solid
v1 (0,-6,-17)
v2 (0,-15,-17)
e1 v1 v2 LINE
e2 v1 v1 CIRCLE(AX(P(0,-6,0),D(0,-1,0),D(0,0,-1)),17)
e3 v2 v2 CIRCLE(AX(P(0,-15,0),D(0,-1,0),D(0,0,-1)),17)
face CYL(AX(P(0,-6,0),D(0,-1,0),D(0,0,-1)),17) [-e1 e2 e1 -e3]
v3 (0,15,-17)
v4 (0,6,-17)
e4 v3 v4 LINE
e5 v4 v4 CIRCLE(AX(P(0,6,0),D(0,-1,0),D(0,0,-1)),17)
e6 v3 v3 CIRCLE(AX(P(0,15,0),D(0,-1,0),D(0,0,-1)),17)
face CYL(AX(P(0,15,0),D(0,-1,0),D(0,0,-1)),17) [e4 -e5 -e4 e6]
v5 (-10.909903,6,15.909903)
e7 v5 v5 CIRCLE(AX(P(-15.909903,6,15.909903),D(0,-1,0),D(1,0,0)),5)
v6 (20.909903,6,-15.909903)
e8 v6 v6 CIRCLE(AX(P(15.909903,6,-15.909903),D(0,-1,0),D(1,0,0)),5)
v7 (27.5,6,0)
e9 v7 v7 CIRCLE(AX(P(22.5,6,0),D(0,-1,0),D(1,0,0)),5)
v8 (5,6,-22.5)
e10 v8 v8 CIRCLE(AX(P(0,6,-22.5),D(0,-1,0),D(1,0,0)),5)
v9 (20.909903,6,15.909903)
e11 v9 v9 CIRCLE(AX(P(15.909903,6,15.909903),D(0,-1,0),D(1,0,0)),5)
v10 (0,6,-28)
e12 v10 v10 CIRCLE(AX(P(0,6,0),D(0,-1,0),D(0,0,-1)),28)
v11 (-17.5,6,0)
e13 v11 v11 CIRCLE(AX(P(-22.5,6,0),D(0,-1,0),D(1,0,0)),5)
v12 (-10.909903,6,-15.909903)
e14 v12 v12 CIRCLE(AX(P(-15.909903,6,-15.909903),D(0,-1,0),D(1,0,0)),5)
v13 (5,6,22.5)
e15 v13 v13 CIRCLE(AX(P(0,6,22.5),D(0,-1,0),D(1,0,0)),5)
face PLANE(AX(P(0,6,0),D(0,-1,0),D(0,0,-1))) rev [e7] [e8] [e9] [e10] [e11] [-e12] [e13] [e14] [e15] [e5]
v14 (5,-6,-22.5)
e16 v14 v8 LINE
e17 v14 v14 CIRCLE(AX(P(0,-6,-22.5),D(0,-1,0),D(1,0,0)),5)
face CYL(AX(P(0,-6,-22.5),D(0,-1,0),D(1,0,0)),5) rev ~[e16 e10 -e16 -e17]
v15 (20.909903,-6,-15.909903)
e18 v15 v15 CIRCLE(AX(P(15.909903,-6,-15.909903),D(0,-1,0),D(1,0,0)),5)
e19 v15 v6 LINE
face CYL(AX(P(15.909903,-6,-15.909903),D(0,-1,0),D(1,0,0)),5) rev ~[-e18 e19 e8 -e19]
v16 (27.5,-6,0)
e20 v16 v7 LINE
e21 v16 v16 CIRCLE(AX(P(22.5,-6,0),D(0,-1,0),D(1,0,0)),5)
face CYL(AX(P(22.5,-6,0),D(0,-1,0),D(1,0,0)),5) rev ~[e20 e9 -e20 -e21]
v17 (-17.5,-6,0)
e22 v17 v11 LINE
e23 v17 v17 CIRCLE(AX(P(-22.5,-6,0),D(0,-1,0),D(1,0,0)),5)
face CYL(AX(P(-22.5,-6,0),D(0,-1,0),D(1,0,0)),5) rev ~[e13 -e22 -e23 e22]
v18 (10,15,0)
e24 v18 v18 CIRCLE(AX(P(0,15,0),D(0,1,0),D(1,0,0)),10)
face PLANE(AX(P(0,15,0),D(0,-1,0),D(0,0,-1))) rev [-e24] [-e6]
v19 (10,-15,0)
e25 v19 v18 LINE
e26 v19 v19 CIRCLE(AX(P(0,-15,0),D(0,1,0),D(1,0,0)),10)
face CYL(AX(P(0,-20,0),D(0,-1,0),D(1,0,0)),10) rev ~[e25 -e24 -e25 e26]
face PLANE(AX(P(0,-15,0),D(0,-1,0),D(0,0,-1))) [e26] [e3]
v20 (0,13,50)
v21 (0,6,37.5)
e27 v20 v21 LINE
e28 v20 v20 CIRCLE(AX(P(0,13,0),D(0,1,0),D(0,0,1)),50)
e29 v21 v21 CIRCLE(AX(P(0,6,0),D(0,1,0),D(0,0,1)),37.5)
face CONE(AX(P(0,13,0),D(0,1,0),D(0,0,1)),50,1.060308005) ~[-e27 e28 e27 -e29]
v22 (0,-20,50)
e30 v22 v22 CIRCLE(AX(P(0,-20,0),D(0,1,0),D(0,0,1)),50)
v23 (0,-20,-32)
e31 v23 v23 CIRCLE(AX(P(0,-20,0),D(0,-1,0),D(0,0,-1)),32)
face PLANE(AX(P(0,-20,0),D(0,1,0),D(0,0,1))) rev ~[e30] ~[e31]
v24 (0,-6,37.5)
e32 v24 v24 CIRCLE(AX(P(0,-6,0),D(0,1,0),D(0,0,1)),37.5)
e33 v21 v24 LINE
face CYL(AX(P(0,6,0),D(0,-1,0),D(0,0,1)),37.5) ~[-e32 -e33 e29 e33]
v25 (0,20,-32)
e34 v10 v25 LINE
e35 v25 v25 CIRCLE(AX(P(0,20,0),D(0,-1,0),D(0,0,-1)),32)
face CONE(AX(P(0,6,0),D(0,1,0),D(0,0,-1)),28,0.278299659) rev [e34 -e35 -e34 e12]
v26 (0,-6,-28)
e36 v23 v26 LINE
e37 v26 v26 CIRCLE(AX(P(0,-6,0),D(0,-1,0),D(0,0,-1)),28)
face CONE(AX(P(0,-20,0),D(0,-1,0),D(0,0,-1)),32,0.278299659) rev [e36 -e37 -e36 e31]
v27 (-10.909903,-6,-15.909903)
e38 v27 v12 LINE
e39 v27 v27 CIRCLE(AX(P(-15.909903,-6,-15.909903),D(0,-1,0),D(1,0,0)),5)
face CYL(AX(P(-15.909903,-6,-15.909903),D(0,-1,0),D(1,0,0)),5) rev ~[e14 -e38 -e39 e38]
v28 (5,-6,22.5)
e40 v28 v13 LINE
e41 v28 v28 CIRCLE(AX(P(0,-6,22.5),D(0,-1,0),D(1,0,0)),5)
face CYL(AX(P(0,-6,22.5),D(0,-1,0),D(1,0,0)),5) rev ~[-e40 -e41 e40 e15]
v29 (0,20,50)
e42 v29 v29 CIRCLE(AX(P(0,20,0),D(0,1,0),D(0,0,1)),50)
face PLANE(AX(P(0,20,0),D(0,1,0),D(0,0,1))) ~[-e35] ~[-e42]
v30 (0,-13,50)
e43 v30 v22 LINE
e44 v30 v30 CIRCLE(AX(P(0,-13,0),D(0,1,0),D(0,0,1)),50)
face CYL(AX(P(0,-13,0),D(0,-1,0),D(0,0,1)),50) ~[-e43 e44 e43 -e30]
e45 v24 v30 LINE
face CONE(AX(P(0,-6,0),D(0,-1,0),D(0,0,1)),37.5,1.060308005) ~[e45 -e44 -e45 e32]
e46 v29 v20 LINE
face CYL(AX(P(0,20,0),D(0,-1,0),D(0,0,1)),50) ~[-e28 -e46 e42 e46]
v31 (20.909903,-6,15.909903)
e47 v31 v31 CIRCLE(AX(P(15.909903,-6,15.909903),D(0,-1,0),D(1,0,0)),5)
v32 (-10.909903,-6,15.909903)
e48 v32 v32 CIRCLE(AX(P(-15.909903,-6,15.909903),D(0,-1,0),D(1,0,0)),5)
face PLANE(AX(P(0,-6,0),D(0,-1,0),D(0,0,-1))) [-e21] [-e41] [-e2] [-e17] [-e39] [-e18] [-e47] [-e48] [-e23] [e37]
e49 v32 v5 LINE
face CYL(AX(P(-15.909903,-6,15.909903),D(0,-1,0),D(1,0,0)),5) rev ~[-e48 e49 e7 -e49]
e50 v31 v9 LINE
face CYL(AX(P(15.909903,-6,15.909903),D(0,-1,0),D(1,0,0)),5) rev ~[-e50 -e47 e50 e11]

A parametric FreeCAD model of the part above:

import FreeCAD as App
import Part
import Sketcher

doc = App.newDocument("Part")
body = doc.addObject("PartDesign::Body", "Body")

sketch1 = doc.addObject("Sketcher::SketchObject", "Sketch")
body.addObject(sketch1)
sketch1.AttachmentSupport = (doc.YZ_Plane, [""])
sketch1.MapMode = "FlatFace"
sketch1.addGeometry([
    Part.LineSegment(App.Vector(-20, 50, 0), App.Vector(-20, 0, 0)),
    Part.LineSegment(App.Vector(-20, 0, 0), App.Vector(20, 0, 0)),
    Part.LineSegment(App.Vector(20, 0, 0), App.Vector(20, 50, 0)),
    Part.LineSegment(App.Vector(20, 50, 0), App.Vector(13, 50, 0)),
    Part.LineSegment(App.Vector(13, 50, 0), App.Vector(6, 37.5, 0)),
    Part.LineSegment(App.Vector(6, 37.5, 0), App.Vector(-6, 37.5, 0)),
    Part.LineSegment(App.Vector(-6, 37.5, 0), App.Vector(-13, 50, 0)),
    Part.LineSegment(App.Vector(-13, 50, 0), App.Vector(-20, 50, 0)),
], False)
sketch1.addConstraint([
    Sketcher.Constraint("Coincident", 0, 2, 1, 1),
    Sketcher.Constraint("Coincident", 1, 2, 2, 1),
    Sketcher.Constraint("Coincident", 2, 2, 3, 1),
    Sketcher.Constraint("Coincident", 3, 2, 4, 1),
    Sketcher.Constraint("Coincident", 4, 2, 5, 1),
    Sketcher.Constraint("Coincident", 5, 2, 6, 1),
    Sketcher.Constraint("Coincident", 6, 2, 7, 1),
    Sketcher.Constraint("Coincident", 7, 2, 0, 1),
    Sketcher.Constraint("Vertical", 0),
    Sketcher.Constraint("Horizontal", 1),
    Sketcher.Constraint("Vertical", 2),
    Sketcher.Constraint("Horizontal", 3),
    Sketcher.Constraint("Horizontal", 5),
    Sketcher.Constraint("Horizontal", 7),
    Sketcher.Constraint("Symmetric", 0, 2, 1, 2, -1, 1),
    Sketcher.Constraint("Symmetric", 3, 2, 6, 2, -2),
    Sketcher.Constraint("Equal", 4, 6),
    Sketcher.Constraint("DistanceX", 1, 1, 1, 2, 40.0),
    Sketcher.Constraint("DistanceX", 3, 2, 3, 1, 7.0),
    Sketcher.Constraint("DistanceX", 5, 2, 5, 1, 12.0),
    Sketcher.Constraint("DistanceY", 0, 2, 0, 1, 50.0),
    Sketcher.Constraint("DistanceY", -1, 1, 4, 2, 37.5),
])
revolution = doc.addObject("PartDesign::Revolution", "Revolution")
body.addObject(revolution)
revolution.Profile = sketch1
revolution.ReferenceAxis = (sketch1, ["H_Axis"])
revolution.Angle = 360

sketch2 = doc.addObject("Sketcher::SketchObject", "Sketch001")
body.addObject(sketch2)
sketch2.AttachmentSupport = (doc.XZ_Plane, [""])
sketch2.MapMode = "FlatFace"
sketch2.AttachmentOffset = App.Placement(App.Vector(0, 0, 20), App.Rotation())
sketch2.addGeometry(Part.Circle(App.Vector(0, 0, 0), App.Vector(0, 0, 1), 10), False)
sketch2.addConstraint([
    Sketcher.Constraint("Coincident", 0, 3, -1, 1),
    Sketcher.Constraint("Diameter", 0, 20.0),
])
pocket1 = doc.addObject("PartDesign::Pocket", "Pocket")
body.addObject(pocket1)
pocket1.Profile = sketch2
pocket1.Length = 40

sketch3 = doc.addObject("Sketcher::SketchObject", "Sketch002")
body.addObject(sketch3)
sketch3.AttachmentSupport = (doc.YZ_Plane, [""])
sketch3.MapMode = "FlatFace"
sketch3.addGeometry([
    Part.LineSegment(App.Vector(-15, -10, 0), App.Vector(-20, -10, 0)),
    Part.LineSegment(App.Vector(-20, -10, 0), App.Vector(-20, -32, 0)),
    Part.LineSegment(App.Vector(-20, -32, 0), App.Vector(-6, -28, 0)),
    Part.LineSegment(App.Vector(-6, -28, 0), App.Vector(-6, -17, 0)),
    Part.LineSegment(App.Vector(-6, -17, 0), App.Vector(-15, -17, 0)),
    Part.LineSegment(App.Vector(-15, -17, 0), App.Vector(-15, -10, 0)),
    Part.LineSegment(App.Vector(15, -17, 0), App.Vector(6, -17, 0)),
    Part.LineSegment(App.Vector(6, -17, 0), App.Vector(6, -28, 0)),
    Part.LineSegment(App.Vector(6, -28, 0), App.Vector(20, -32, 0)),
    Part.LineSegment(App.Vector(20, -32, 0), App.Vector(20, -10, 0)),
    Part.LineSegment(App.Vector(20, -10, 0), App.Vector(15, -10, 0)),
    Part.LineSegment(App.Vector(15, -10, 0), App.Vector(15, -17, 0)),
], False)
sketch3.addConstraint([
    Sketcher.Constraint("Coincident", 0, 2, 1, 1),
    Sketcher.Constraint("Coincident", 1, 2, 2, 1),
    Sketcher.Constraint("Coincident", 2, 2, 3, 1),
    Sketcher.Constraint("Coincident", 3, 2, 4, 1),
    Sketcher.Constraint("Coincident", 4, 2, 5, 1),
    Sketcher.Constraint("Coincident", 5, 2, 0, 1),
    Sketcher.Constraint("Coincident", 6, 2, 7, 1),
    Sketcher.Constraint("Coincident", 7, 2, 8, 1),
    Sketcher.Constraint("Coincident", 8, 2, 9, 1),
    Sketcher.Constraint("Coincident", 9, 2, 10, 1),
    Sketcher.Constraint("Coincident", 10, 2, 11, 1),
    Sketcher.Constraint("Coincident", 11, 2, 6, 1),
    Sketcher.Constraint("Horizontal", 0),
    Sketcher.Constraint("Vertical", 1),
    Sketcher.Constraint("Vertical", 3),
    Sketcher.Constraint("Horizontal", 4),
    Sketcher.Constraint("Vertical", 5),
    Sketcher.Constraint("Horizontal", 6),
    Sketcher.Constraint("Vertical", 7),
    Sketcher.Constraint("Vertical", 9),
    Sketcher.Constraint("Horizontal", 10),
    Sketcher.Constraint("Vertical", 11),
    Sketcher.Constraint("Symmetric", 3, 2, 6, 2, -2),
    Sketcher.Constraint("Symmetric", 1, 2, 8, 2, -2),
    Sketcher.Constraint("Symmetric", 5, 2, 10, 2, -2),
    Sketcher.Constraint("Horizontal", 2, 2, 7, 2),
    Sketcher.Constraint("DistanceX", 0, 2, 0, 1, 5.0),
    Sketcher.Constraint("DistanceX", 4, 2, 4, 1, 9.0),
    Sketcher.Constraint("DistanceY", 1, 2, 1, 1, 22.0),
    Sketcher.Constraint("DistanceY", 3, 1, 3, 2, 11.0),
    Sketcher.Constraint("DistanceY", 5, 1, 5, 2, 7.0),
    Sketcher.Constraint("DistanceX", 0, 2, -1, 1, 20.0),
    Sketcher.Constraint("DistanceY", 0, 2, -1, 1, 10.0),
])
groove = doc.addObject("PartDesign::Groove", "Groove")
body.addObject(groove)
groove.Profile = sketch3
groove.ReferenceAxis = (sketch3, ["H_Axis"])
groove.Angle = 360

sketch4 = doc.addObject("Sketcher::SketchObject", "Sketch003")
body.addObject(sketch4)
sketch4.AttachmentSupport = (doc.XZ_Plane, [""])
sketch4.MapMode = "FlatFace"
sketch4.AttachmentOffset = App.Placement(App.Vector(0, 0, 6), App.Rotation())
sketch4.addGeometry([
    Part.Circle(App.Vector(-15.909903, 15.909903, 0), App.Vector(0, 0, 1), 5),
    Part.Circle(App.Vector(0, 22.5, 0), App.Vector(0, 0, 1), 5),
    Part.Circle(App.Vector(15.909903, 15.909903, 0), App.Vector(0, 0, 1), 5),
    Part.Circle(App.Vector(-22.5, 0, 0), App.Vector(0, 0, 1), 5),
    Part.Circle(App.Vector(-15.909903, -15.909903, 0), App.Vector(0, 0, 1), 5),
    Part.Circle(App.Vector(0, -22.5, 0), App.Vector(0, 0, 1), 5),
    Part.Circle(App.Vector(15.909903, -15.909903, 0), App.Vector(0, 0, 1), 5),
    Part.Circle(App.Vector(22.5, 0, 0), App.Vector(0, 0, 1), 5),
], False)
sketch4.addConstraint([
    Sketcher.Constraint("Equal", 0, 1),
    Sketcher.Constraint("Equal", 1, 2),
    Sketcher.Constraint("Equal", 2, 3),
    Sketcher.Constraint("Equal", 3, 4),
    Sketcher.Constraint("Equal", 4, 5),
    Sketcher.Constraint("Equal", 5, 6),
    Sketcher.Constraint("Equal", 6, 7),
    Sketcher.Constraint("Symmetric", 2, 3, 4, 3, -1, 1),
    Sketcher.Constraint("Symmetric", 1, 3, 5, 3, -1, 1),
    Sketcher.Constraint("Symmetric", 0, 3, 6, 3, -1, 1),
    Sketcher.Constraint("Symmetric", 3, 3, 7, 3, -1, 1),
    Sketcher.Constraint("Symmetric", 0, 3, 2, 3, -2),
    Sketcher.Constraint("PointOnObject", 1, 3, -2),
    Sketcher.Constraint("PointOnObject", 3, 3, -1),
    Sketcher.Constraint("Diameter", 0, 10.0),
    Sketcher.Constraint("DistanceY", 5, 3, 1, 3, 45.0),
    Sketcher.Constraint("DistanceX", 3, 3, -1, 1, 22.5),
    Sketcher.Constraint("DistanceX", 0, 3, -1, 1, 15.909903),
    Sketcher.Constraint("DistanceY", -1, 1, 0, 3, 15.909903),
])
pocket2 = doc.addObject("PartDesign::Pocket", "Pocket001")
body.addObject(pocket2)
pocket2.Profile = sketch4
pocket2.Length = 25

doc.recompute()
